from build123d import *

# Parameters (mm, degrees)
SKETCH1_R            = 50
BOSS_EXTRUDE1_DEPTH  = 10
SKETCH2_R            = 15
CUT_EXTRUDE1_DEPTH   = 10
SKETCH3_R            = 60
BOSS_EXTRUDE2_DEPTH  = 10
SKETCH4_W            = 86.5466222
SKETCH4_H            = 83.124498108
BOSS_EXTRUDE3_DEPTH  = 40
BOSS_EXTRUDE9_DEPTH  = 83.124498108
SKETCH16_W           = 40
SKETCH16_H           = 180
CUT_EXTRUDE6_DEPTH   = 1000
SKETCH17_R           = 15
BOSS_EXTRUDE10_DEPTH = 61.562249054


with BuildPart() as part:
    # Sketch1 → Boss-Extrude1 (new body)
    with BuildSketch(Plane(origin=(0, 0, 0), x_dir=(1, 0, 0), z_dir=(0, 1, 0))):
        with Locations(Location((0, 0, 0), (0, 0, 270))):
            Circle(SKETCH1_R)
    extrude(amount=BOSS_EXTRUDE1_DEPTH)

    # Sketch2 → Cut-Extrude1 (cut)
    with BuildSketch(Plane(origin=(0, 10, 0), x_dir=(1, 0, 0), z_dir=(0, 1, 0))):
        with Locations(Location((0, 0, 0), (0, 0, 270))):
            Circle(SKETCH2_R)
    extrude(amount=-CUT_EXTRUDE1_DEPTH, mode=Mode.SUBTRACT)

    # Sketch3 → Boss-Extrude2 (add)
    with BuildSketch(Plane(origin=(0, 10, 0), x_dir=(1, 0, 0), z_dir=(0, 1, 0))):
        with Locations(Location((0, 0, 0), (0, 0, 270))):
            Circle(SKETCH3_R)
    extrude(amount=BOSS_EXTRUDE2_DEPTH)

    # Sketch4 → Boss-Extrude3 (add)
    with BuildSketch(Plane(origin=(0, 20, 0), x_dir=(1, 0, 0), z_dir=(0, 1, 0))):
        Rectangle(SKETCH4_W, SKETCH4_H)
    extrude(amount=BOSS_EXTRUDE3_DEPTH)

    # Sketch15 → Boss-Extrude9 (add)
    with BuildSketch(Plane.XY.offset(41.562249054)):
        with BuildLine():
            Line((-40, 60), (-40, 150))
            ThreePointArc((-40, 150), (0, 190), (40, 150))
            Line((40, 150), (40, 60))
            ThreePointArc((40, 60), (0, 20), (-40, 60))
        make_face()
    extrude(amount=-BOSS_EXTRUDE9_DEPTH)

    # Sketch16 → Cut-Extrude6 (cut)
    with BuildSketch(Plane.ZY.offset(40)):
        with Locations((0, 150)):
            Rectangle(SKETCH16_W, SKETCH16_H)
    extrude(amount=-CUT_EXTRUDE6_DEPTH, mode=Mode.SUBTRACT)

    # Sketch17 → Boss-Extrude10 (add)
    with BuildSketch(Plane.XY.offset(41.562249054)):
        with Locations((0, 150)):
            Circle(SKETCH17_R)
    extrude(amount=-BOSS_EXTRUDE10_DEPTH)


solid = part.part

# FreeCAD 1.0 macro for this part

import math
import FreeCAD as App
import Part
import Sketcher
from FreeCAD import Vector
Q = App.Units.Quantity


def add_polygon(sketch, points):
    """Adds a closed chain of lines whose ends are joined by coincident constraints."""
    first, n = sketch.GeometryCount, len(points)
    for a, b in zip(points, points[1:] + points[:1]):
        sketch.addGeometry(Part.LineSegment(App.Vector(*a, 0), App.Vector(*b, 0)), False)
    for i in range(n):
        sketch.addConstraint(Sketcher.Constraint("Coincident", first + i, 2, first + (i + 1) % n, 1))

doc = App.newDocument("Part")
params = doc.addObject("Spreadsheet::Sheet", "Params")
for row, (alias, value) in enumerate([
    ("sketch1_diameter", "100 mm"),
    ("pad1_length", "10 mm"),
    ("sketch2_diameter", "30 mm"),
    ("pocket1_length", "10 mm"),
    ("sketch3_diameter", "120 mm"),
    ("pad2_length", "10 mm"),
    ("pad3_length", "40 mm"),
    ("sketch5_radius", "40 mm"),
    ("sketch5_height", "90 mm"),
    ("pad4_length", "83.124498 mm"),
    ("sketch6_width", "180 mm"),
    ("sketch6_height", "40 mm"),
    ("pocket2_length", "1000 mm"),
    ("sketch7_diameter", "30 mm"),
    ("pad5_length", "61.562249 mm"),
], start=1):
    params.set(f"A{row}", alias)
    params.set(f"B{row}", "=" + value)
    params.setAlias(f"B{row}", alias)

body = doc.addObject("PartDesign::Body", "Body")

# Sketch on XZ plane
sketch1 = body.newObject("Sketcher::SketchObject", "Sketch")
sketch1.AttachmentSupport = (doc.getObject("XZ_Plane"), [""])
sketch1.MapMode = "FlatFace"
sketch1.addGeometry(Part.Circle(Vector(0, 0, 0), Vector(0, 0, 1), 50), False)
sketch1.addConstraint([
    Sketcher.Constraint("Coincident", 0, 3, -1, 1),
    Sketcher.Constraint("Diameter", 0, Q("100 mm")),
])
sketch1.setExpression("Constraints[1]", "Params.sketch1_diameter")
pad1 = body.newObject("PartDesign::Pad", "Pad")
pad1.Profile = sketch1
pad1.setExpression("Length", "Params.pad1_length")
pad1.Reversed = True

# Sketch on XZ plane
sketch2 = body.newObject("Sketcher::SketchObject", "Sketch001")
sketch2.AttachmentSupport = (doc.getObject("XZ_Plane"), [""])
sketch2.MapMode = "FlatFace"
sketch2.AttachmentOffset = App.Placement(Vector(0, 0, -10), App.Rotation())
sketch2.addGeometry(Part.Circle(Vector(0, 0, 0), Vector(0, 0, 1), 15), False)
sketch2.addConstraint([
    Sketcher.Constraint("Coincident", 0, 3, -1, 1),
    Sketcher.Constraint("Diameter", 0, Q("30 mm")),
])
sketch2.setExpression("Constraints[1]", "Params.sketch2_diameter")
pocket1 = body.newObject("PartDesign::Pocket", "Pocket")
pocket1.Profile = sketch2
pocket1.setExpression("Length", "Params.pocket1_length")
pocket1.Reversed = True

# Sketch on XZ plane
sketch3 = body.newObject("Sketcher::SketchObject", "Sketch002")
sketch3.AttachmentSupport = (doc.getObject("XZ_Plane"), [""])
sketch3.MapMode = "FlatFace"
sketch3.AttachmentOffset = App.Placement(Vector(0, 0, -10), App.Rotation())
sketch3.addGeometry(Part.Circle(Vector(0, 0, 0), Vector(0, 0, 1), 60), False)
sketch3.addConstraint([
    Sketcher.Constraint("Coincident", 0, 3, -1, 1),
    Sketcher.Constraint("Diameter", 0, Q("120 mm")),
])
sketch3.setExpression("Constraints[1]", "Params.sketch3_diameter")
pad2 = body.newObject("PartDesign::Pad", "Pad001")
pad2.Profile = sketch3
pad2.setExpression("Length", "Params.pad2_length")
pad2.Reversed = True

# Sketch on XZ plane
sketch4 = body.newObject("Sketcher::SketchObject", "Sketch003")
sketch4.AttachmentSupport = (doc.getObject("XZ_Plane"), [""])
sketch4.MapMode = "FlatFace"
sketch4.AttachmentOffset = App.Placement(Vector(0, 0, -20), App.Rotation())
add_polygon(sketch4, [(-43.273311, -41.562249), (-43.273311, 41.562249), (43.273311, 41.562249), (43.273311, -41.562249)])  # lines 0-3
sketch4.addConstraint([
    Sketcher.Constraint("Vertical", 0),
    Sketcher.Constraint("Horizontal", 1),
    Sketcher.Constraint("Vertical", 2),
    Sketcher.Constraint("Horizontal", 3),
    Sketcher.Constraint("Symmetric", 0, 2, 2, 2, -1, 1),
    Sketcher.Constraint("DistanceY", 0, 1, 0, 2, Q("83.124498 mm")),
    Sketcher.Constraint("DistanceX", 1, 1, 1, 2, Q("86.546622 mm")),
])
pad3 = body.newObject("PartDesign::Pad", "Pad002")
pad3.Profile = sketch4
pad3.setExpression("Length", "Params.pad3_length")
pad3.Reversed = True

# Sketch on XY plane
sketch5 = body.newObject("Sketcher::SketchObject", "Sketch004")
sketch5.AttachmentSupport = (doc.getObject("XY_Plane"), [""])
sketch5.MapMode = "FlatFace"
sketch5.AttachmentOffset = App.Placement(Vector(0, 0, 41.562249), App.Rotation())
sketch5.addGeometry([
    Part.LineSegment(Vector(-40, 150, 0), Vector(-40, 60, 0)),
    Part.ArcOfCircle(Part.Circle(Vector(0, 60, 0), Vector(0, 0, 1), 40), math.radians(180), math.radians(360)),
    Part.LineSegment(Vector(40, 60, 0), Vector(40, 150, 0)),
    Part.ArcOfCircle(Part.Circle(Vector(0, 150, 0), Vector(0, 0, 1), 40), math.radians(0), math.radians(180)),
], False)
sketch5.addConstraint([
    Sketcher.Constraint("Tangent", 0, 2, 1, 1),
    Sketcher.Constraint("Tangent", 1, 2, 2, 1),
    Sketcher.Constraint("Tangent", 2, 2, 3, 1),
    Sketcher.Constraint("Tangent", 3, 2, 0, 1),
    Sketcher.Constraint("Vertical", 0),
    Sketcher.Constraint("Vertical", 2),
    Sketcher.Constraint("PointOnObject", 1, 3, -2),
    Sketcher.Constraint("Radius", 1, Q("40 mm")),
    Sketcher.Constraint("DistanceY", 0, 2, 0, 1, Q("90 mm")),
    Sketcher.Constraint("DistanceY", -1, 1, 1, 3, Q("60 mm")),
])
sketch5.setExpression("Constraints[7]", "Params.sketch5_radius")
sketch5.setExpression("Constraints[8]", "Params.sketch5_height")
pad4 = body.newObject("PartDesign::Pad", "Pad003")
pad4.Profile = sketch5
pad4.setExpression("Length", "Params.pad4_length")
pad4.Reversed = True

# Sketch on YZ plane
sketch6 = body.newObject("Sketcher::SketchObject", "Sketch005")
sketch6.AttachmentSupport = (doc.getObject("YZ_Plane"), [""])
sketch6.MapMode = "FlatFace"
sketch6.AttachmentOffset = App.Placement(Vector(0, 0, -40), App.Rotation())
add_polygon(sketch6, [(240, -20), (60, -20), (60, 20), (240, 20)])  # lines 0-3
sketch6.addConstraint([
    Sketcher.Constraint("Horizontal", 0),
    Sketcher.Constraint("Vertical", 1),
    Sketcher.Constraint("Horizontal", 2),
    Sketcher.Constraint("Vertical", 3),
    Sketcher.Constraint("DistanceX", 0, 2, 0, 1, Q("180 mm")),
    Sketcher.Constraint("DistanceY", 1, 1, 1, 2, Q("40 mm")),
    Sketcher.Constraint("DistanceX", -1, 1, 0, 2, Q("60 mm")),
    Sketcher.Constraint("DistanceY", 0, 2, -1, 1, Q("20 mm")),
])
sketch6.setExpression("Constraints[8]", "Params.sketch6_width")
sketch6.setExpression("Constraints[9]", "Params.sketch6_height")
pocket2 = body.newObject("PartDesign::Pocket", "Pocket001")
pocket2.Profile = sketch6
pocket2.setExpression("Length", "Params.pocket2_length")
pocket2.Reversed = True

# Sketch on XY plane
sketch7 = body.newObject("Sketcher::SketchObject", "Sketch006")
sketch7.AttachmentSupport = (doc.getObject("XY_Plane"), [""])
sketch7.MapMode = "FlatFace"
sketch7.AttachmentOffset = App.Placement(Vector(0, 0, 41.562249), App.Rotation())
sketch7.addGeometry(Part.Circle(Vector(0, 150, 0), Vector(0, 0, 1), 15), False)
sketch7.addConstraint([
    Sketcher.Constraint("PointOnObject", 0, 3, -2),
    Sketcher.Constraint("Diameter", 0, Q("30 mm")),
    Sketcher.Constraint("DistanceY", -1, 1, 0, 3, Q("150 mm")),
])
sketch7.setExpression("Constraints[1]", "Params.sketch7_diameter")
pad5 = body.newObject("PartDesign::Pad", "Pad004")
pad5.Profile = sketch7
pad5.setExpression("Length", "Params.pad5_length")
pad5.Reversed = True

doc.recompute()
